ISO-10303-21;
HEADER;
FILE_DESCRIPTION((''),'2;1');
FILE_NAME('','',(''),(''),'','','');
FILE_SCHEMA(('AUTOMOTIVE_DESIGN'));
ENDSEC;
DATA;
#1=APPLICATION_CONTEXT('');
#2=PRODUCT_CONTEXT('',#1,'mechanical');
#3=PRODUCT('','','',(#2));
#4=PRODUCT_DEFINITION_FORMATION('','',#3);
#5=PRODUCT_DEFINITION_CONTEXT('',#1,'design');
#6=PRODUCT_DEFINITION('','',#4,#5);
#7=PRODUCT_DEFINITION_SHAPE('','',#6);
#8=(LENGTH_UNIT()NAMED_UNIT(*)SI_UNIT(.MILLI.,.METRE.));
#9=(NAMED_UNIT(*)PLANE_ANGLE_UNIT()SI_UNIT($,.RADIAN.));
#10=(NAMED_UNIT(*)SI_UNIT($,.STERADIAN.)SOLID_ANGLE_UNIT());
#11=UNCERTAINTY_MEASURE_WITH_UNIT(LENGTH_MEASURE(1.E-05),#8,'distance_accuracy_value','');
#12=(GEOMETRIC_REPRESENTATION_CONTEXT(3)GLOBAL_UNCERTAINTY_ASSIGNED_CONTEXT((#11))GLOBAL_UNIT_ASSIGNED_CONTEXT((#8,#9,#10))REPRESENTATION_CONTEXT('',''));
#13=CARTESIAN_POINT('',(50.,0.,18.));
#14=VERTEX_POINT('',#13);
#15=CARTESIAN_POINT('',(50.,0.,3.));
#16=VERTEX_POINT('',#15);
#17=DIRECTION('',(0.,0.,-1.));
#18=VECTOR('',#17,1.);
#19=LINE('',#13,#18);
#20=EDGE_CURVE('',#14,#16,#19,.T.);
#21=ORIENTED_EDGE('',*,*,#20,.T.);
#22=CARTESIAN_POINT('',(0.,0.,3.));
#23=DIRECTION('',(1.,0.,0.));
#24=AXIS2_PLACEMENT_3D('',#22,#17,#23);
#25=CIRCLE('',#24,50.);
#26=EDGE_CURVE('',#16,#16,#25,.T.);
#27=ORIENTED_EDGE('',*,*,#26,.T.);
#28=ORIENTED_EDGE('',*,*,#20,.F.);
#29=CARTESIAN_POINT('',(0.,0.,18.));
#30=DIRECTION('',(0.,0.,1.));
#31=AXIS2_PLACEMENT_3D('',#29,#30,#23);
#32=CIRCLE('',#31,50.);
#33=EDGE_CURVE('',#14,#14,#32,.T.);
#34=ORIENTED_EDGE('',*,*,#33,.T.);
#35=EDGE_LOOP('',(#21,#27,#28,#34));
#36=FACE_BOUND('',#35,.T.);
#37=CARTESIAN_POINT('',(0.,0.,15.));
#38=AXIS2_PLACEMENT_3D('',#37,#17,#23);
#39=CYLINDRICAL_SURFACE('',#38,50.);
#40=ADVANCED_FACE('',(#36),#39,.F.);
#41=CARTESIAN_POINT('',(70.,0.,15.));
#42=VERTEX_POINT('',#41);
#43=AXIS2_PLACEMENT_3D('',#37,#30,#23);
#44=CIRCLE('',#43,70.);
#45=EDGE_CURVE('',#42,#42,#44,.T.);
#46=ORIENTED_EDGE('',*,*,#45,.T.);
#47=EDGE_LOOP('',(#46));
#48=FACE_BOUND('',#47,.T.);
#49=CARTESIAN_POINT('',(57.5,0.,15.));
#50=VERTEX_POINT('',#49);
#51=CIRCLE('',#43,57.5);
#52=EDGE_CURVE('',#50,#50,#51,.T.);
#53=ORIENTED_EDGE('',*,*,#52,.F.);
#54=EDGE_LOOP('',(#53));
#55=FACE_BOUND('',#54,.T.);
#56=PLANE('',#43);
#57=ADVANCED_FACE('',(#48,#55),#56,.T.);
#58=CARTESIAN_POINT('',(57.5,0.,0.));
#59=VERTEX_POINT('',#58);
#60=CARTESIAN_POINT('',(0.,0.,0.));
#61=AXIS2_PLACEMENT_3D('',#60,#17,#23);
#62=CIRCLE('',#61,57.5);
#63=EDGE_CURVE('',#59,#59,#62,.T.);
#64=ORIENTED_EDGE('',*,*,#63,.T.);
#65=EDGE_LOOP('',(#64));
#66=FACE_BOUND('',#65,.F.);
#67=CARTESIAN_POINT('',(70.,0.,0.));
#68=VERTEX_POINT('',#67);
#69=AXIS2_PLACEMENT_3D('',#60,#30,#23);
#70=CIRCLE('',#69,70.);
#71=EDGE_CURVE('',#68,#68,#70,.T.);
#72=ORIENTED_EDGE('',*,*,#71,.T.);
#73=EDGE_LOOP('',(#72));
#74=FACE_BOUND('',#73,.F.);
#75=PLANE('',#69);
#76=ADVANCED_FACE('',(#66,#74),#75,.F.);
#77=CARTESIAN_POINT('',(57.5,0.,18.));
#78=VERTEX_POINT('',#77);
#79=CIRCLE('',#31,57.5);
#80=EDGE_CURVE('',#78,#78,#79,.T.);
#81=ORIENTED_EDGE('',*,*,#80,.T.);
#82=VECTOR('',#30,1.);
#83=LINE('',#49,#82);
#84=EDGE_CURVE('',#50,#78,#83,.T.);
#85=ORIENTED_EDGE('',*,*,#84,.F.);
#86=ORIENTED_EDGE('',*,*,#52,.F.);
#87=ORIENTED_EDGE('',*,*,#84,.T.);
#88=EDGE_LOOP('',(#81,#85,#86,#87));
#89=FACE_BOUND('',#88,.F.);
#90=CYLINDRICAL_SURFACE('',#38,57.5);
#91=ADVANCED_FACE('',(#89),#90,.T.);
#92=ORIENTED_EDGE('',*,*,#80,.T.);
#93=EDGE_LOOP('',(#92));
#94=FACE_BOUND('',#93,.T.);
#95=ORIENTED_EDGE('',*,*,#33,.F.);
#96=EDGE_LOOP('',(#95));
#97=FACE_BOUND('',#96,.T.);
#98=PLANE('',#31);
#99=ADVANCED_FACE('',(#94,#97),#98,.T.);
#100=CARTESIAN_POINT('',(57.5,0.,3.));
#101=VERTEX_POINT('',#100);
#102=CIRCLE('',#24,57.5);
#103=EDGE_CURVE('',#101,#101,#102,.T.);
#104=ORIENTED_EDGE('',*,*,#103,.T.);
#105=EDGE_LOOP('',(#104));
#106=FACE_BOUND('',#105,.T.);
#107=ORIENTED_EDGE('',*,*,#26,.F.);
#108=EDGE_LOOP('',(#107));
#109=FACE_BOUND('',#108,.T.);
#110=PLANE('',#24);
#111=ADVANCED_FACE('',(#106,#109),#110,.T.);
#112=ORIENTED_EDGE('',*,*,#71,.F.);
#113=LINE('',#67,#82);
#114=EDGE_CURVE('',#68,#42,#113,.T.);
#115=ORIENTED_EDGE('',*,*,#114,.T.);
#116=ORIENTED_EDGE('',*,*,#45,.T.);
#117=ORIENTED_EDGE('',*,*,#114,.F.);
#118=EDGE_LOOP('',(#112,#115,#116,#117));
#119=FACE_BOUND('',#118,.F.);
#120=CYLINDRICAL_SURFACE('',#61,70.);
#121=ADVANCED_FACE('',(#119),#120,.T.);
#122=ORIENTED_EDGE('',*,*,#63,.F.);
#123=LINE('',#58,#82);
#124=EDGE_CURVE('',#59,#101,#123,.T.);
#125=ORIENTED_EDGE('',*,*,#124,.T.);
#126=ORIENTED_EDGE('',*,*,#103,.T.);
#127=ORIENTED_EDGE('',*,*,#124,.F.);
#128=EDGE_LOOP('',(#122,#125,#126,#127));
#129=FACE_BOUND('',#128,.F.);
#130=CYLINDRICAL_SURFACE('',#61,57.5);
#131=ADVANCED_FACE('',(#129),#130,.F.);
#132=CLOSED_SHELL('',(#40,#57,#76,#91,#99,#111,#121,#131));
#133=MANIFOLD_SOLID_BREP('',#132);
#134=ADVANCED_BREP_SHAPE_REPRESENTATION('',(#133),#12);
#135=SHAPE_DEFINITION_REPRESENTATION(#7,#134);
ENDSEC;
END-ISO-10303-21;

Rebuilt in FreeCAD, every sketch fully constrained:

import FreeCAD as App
import Part
import Sketcher

V = App.Vector
Q = App.Units.Quantity

doc = App.newDocument("Part")
params = doc.addObject("Spreadsheet::Sheet", "Params")
for row, (alias, value) in enumerate([
    ("sketch1_diameter", "140 mm"),
    ("sketch1_diameter2", "100 mm"),
    ("pad1_length", "15 mm"),
    ("sketch2_diameter", "115 mm"),
    ("sketch2_diameter2", "100 mm"),
    ("pad2_length", "3 mm"),
    ("sketch3_diameter", "115 mm"),
    ("sketch3_diameter2", "100 mm"),
    ("pocket1_length", "3 mm"),
], start=1):
    params.set(f"A{row}", alias)
    params.set(f"B{row}", "=" + value)
    params.setAlias(f"B{row}", alias)

body = doc.addObject("PartDesign::Body", "Body")

# Sketch on XY plane
sketch1 = body.newObject("Sketcher::SketchObject", "Sketch")
sketch1.AttachmentSupport = (doc.getObject("XY_Plane"), [""])
sketch1.MapMode = "FlatFace"
sketch1.addGeometry([
    Part.Circle(V(0, 0, 0), V(0, 0, 1), 70),
    Part.Circle(V(0, 0, 0), V(0, 0, 1), 50),
], False)
sketch1.addConstraint([
    Sketcher.Constraint("Coincident", 0, 3, -1, 1),
    Sketcher.Constraint("Coincident", 1, 3, -1, 1),
    Sketcher.Constraint("Diameter", 0, Q("140 mm")),
    Sketcher.Constraint("Diameter", 1, Q("100 mm")),
])
sketch1.setExpression("Constraints[2]", "Params.sketch1_diameter")
sketch1.setExpression("Constraints[3]", "Params.sketch1_diameter2")
pad1 = body.newObject("PartDesign::Pad", "Pad")
pad1.Profile = sketch1
pad1.setExpression("Length", "Params.pad1_length")

# Sketch on XY plane
sketch2 = body.newObject("Sketcher::SketchObject", "Sketch001")
sketch2.AttachmentSupport = (doc.getObject("XY_Plane"), [""])
sketch2.MapMode = "FlatFace"
sketch2.AttachmentOffset = App.Placement(V(0, 0, 15), App.Rotation())
sketch2.addGeometry([
    Part.Circle(V(0, 0, 0), V(0, 0, 1), 58),
    Part.Circle(V(0, 0, 0), V(0, 0, 1), 50),
], False)
sketch2.addConstraint([
    Sketcher.Constraint("Coincident", 0, 3, -1, 1),
    Sketcher.Constraint("Coincident", 1, 3, -1, 1),
    Sketcher.Constraint("Diameter", 0, Q("115 mm")),
    Sketcher.Constraint("Diameter", 1, Q("100 mm")),
])
sketch2.setExpression("Constraints[2]", "Params.sketch2_diameter")
sketch2.setExpression("Constraints[3]", "Params.sketch2_diameter2")
pad2 = body.newObject("PartDesign::Pad", "Pad001")
pad2.Profile = sketch2
pad2.setExpression("Length", "Params.pad2_length")

# Sketch on XY plane
sketch3 = body.newObject("Sketcher::SketchObject", "Sketch002")
sketch3.AttachmentSupport = (doc.getObject("XY_Plane"), [""])
sketch3.MapMode = "FlatFace"
sketch3.addGeometry([
    Part.Circle(V(0, 0, 0), V(0, 0, 1), 58),
    Part.Circle(V(0, 0, 0), V(0, 0, 1), 50),
], False)
sketch3.addConstraint([
    Sketcher.Constraint("Coincident", 0, 3, -1, 1),
    Sketcher.Constraint("Coincident", 1, 3, -1, 1),
    Sketcher.Constraint("Diameter", 0, Q("115 mm")),
    Sketcher.Constraint("Diameter", 1, Q("100 mm")),
])
sketch3.setExpression("Constraints[2]", "Params.sketch3_diameter")
sketch3.setExpression("Constraints[3]", "Params.sketch3_diameter2")
pocket1 = body.newObject("PartDesign::Pocket", "Pocket")
pocket1.Profile = sketch3
pocket1.setExpression("Length", "Params.pocket1_length")
pocket1.Reversed = True

doc.recompute()
